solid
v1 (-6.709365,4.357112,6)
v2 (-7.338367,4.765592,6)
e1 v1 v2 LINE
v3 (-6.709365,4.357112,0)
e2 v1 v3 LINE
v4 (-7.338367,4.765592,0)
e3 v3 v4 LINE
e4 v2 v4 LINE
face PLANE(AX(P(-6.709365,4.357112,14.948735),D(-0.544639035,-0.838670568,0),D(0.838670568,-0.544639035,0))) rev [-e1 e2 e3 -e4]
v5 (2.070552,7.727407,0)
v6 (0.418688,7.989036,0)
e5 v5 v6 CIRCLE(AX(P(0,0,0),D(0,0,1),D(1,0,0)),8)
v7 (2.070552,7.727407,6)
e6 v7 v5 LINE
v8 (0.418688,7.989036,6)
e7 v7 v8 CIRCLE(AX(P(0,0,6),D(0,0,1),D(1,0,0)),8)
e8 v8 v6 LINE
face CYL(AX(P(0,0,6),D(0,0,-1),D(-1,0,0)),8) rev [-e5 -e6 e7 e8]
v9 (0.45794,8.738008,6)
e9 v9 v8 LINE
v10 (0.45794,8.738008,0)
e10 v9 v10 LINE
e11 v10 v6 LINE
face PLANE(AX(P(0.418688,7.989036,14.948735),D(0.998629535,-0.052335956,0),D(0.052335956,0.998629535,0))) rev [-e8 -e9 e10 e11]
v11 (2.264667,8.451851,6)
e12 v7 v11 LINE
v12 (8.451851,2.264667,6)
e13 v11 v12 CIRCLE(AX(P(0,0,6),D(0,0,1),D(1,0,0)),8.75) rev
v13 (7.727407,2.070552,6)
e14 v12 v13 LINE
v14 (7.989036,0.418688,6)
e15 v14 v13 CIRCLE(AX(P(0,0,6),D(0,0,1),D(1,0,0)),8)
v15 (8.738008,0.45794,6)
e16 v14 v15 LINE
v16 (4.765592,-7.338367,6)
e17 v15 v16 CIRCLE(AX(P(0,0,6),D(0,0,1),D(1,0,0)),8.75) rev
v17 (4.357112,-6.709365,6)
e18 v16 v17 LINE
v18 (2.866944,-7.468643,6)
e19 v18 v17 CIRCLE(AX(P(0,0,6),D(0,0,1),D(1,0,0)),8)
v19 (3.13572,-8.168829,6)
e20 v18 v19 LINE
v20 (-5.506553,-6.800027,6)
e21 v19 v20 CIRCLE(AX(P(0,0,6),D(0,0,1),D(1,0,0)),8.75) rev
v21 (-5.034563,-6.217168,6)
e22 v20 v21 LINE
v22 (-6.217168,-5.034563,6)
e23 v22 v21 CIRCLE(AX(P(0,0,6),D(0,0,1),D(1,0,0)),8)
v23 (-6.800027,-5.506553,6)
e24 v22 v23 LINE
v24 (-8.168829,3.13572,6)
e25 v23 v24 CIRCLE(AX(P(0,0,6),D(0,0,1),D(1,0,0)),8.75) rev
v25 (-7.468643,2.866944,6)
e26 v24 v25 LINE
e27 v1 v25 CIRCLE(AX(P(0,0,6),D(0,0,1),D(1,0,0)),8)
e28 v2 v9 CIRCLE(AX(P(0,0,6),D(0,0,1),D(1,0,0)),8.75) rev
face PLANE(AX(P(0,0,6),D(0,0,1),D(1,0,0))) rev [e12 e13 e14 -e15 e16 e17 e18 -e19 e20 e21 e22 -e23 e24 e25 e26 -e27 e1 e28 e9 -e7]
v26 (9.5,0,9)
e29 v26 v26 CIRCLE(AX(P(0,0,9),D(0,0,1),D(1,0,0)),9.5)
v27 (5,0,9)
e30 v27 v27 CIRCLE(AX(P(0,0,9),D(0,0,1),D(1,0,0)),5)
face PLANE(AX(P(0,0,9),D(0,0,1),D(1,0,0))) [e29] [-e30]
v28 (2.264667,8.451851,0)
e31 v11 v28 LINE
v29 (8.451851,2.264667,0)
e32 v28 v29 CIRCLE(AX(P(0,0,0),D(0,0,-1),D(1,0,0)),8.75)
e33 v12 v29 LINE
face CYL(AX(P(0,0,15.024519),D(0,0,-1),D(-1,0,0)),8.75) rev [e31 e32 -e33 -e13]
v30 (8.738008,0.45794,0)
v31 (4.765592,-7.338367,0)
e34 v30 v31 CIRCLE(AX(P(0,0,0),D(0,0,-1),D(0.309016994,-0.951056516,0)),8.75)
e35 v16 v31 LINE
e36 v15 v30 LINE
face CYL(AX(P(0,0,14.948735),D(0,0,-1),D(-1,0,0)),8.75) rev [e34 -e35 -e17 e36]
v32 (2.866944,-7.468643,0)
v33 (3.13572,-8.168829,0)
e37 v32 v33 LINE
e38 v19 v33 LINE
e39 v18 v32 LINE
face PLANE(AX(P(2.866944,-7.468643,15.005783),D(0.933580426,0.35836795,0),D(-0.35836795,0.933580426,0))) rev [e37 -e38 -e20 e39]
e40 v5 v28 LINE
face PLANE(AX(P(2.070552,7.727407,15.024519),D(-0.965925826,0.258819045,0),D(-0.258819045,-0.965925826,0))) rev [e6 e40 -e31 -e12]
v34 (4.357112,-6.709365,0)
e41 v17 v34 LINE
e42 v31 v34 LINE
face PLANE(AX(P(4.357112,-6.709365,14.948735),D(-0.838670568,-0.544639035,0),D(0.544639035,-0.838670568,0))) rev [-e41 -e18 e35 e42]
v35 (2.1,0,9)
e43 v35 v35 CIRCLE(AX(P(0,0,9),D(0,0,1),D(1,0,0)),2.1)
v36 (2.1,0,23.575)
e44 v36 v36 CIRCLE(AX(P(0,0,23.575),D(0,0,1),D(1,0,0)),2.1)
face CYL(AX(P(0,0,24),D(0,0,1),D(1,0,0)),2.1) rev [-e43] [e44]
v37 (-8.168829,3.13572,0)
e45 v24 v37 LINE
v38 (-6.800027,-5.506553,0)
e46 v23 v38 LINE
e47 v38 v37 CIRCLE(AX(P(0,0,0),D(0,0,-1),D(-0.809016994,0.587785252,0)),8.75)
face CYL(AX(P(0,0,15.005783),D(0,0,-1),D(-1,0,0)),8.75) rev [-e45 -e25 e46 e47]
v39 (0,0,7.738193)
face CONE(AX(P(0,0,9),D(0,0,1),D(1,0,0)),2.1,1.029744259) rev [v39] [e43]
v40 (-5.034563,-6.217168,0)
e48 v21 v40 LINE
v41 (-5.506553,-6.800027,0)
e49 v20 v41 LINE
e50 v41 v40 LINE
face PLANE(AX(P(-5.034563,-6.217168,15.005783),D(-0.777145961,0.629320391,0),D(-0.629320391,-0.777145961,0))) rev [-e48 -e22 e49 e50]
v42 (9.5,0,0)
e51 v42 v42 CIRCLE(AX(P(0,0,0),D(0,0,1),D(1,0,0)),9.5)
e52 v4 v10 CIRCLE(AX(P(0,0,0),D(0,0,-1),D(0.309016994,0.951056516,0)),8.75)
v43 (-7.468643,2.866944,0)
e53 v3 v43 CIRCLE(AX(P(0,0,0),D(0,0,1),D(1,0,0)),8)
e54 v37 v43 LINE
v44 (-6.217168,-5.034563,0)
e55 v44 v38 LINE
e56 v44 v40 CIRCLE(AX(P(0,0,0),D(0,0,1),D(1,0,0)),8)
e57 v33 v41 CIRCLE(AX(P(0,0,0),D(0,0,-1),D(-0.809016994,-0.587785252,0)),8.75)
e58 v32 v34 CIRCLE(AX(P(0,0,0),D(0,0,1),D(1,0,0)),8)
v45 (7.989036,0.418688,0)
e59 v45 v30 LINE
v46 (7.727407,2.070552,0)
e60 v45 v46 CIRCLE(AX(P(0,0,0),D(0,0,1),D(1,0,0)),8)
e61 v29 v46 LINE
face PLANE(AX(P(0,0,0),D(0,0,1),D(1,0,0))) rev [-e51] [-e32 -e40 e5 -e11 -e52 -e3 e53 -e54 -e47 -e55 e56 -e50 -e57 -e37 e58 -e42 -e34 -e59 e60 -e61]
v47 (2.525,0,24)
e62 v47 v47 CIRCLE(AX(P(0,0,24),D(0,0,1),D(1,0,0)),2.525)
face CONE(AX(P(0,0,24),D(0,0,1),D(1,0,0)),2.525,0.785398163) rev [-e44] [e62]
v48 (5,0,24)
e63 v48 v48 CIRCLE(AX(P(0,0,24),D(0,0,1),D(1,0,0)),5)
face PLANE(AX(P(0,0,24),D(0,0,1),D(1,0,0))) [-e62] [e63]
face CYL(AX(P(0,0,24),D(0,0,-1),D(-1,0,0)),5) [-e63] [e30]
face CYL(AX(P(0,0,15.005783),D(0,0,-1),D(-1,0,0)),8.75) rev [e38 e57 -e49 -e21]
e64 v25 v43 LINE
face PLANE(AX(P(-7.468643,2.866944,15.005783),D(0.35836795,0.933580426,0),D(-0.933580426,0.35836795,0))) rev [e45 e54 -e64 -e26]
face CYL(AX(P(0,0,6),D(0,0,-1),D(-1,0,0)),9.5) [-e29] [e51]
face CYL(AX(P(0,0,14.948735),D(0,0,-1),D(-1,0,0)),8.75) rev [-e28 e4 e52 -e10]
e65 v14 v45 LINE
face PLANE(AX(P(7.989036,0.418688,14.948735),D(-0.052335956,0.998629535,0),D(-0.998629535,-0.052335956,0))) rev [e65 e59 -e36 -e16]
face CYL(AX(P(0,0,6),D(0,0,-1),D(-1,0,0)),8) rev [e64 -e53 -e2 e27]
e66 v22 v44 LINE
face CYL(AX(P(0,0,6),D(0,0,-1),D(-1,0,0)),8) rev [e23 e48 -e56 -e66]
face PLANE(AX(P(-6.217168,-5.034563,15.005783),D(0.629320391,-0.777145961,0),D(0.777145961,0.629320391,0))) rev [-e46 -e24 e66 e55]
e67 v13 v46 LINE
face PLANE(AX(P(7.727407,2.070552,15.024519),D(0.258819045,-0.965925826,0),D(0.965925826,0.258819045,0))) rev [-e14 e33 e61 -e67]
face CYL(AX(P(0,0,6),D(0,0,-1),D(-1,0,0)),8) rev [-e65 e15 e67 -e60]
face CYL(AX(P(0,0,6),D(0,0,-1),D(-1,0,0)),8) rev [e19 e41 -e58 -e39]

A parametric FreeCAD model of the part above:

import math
import FreeCAD as App
import Part
import Sketcher

V = App.Vector
Q = App.Units.Quantity

doc = App.newDocument("Part")
body = doc.addObject("PartDesign::Body", "Body")

# Sketch on XY plane
sketch1 = doc.addObject("Sketcher::SketchObject", "Sketch")
body.addObject(sketch1)
sketch1.AttachmentSupport = (doc.XY_Plane, [""])
sketch1.MapMode = "FlatFace"
sketch1.addGeometry(Part.Circle(V(0, 0, 0), V(0, 0, 1), 10), False)
sketch1.addGeometry(Part.Circle(V(0, 0, 0), V(0, 0, 1), 8), False)
sketch1.addConstraint(Sketcher.Constraint("Coincident", 0, 3, -1, 1))
sketch1.addConstraint(Sketcher.Constraint("Coincident", 1, 3, -1, 1))
sketch1.addConstraint(Sketcher.Constraint("Diameter", 0, 19.0))
sketch1.addConstraint(Sketcher.Constraint("Diameter", 1, 16.0))
pad1 = doc.addObject("PartDesign::Pad", "Pad")
body.addObject(pad1)
pad1.Profile = sketch1
pad1.Length = 6

# Sketch on XY plane
sketch2 = doc.addObject("Sketcher::SketchObject", "Sketch001")
body.addObject(sketch2)
sketch2.AttachmentSupport = (doc.XY_Plane, [""])
sketch2.MapMode = "FlatFace"
sketch2.AttachmentOffset = App.Placement(V(0, 0, 6), App.Rotation())
sketch2.addGeometry(Part.Circle(V(0, 0, 0), V(0, 0, 1), 10), False)
sketch2.addConstraint(Sketcher.Constraint("Coincident", 0, 3, -1, 1))
sketch2.addConstraint(Sketcher.Constraint("Diameter", 0, 19.0))
pad2 = doc.addObject("PartDesign::Pad", "Pad001")
body.addObject(pad2)
pad2.Profile = sketch2
pad2.Length = 3

# Sketch on XY plane
sketch3 = doc.addObject("Sketcher::SketchObject", "Sketch002")
body.addObject(sketch3)
sketch3.AttachmentSupport = (doc.XY_Plane, [""])
sketch3.MapMode = "FlatFace"
sketch3.AttachmentOffset = App.Placement(V(0, 0, 9), App.Rotation())
sketch3.addGeometry(Part.Circle(V(0, 0, 0), V(0, 0, 1), 5), False)
sketch3.addConstraint(Sketcher.Constraint("Coincident", 0, 3, -1, 1))
sketch3.addConstraint(Sketcher.Constraint("Diameter", 0, 10.0))
pad3 = doc.addObject("PartDesign::Pad", "Pad002")
body.addObject(pad3)
pad3.Profile = sketch3
pad3.Length = 15

# Sketch on XY plane
sketch4 = doc.addObject("Sketcher::SketchObject", "Sketch003")
body.addObject(sketch4)
sketch4.AttachmentSupport = (doc.XY_Plane, [""])
sketch4.MapMode = "FlatFace"
sketch4.addGeometry(Part.LineSegment(V(8.5, 2.3, 0), V(7.7, 2.1, 0)), False)
sketch4.addGeometry(Part.ArcOfCircle(Part.Circle(V(0, 0, 0), V(0, 0, 1), 8), math.radians(15), math.radians(75)), False)
sketch4.addGeometry(Part.LineSegment(V(2.1, 7.7, 0), V(2.3, 8.5, 0)), False)
sketch4.addGeometry(Part.ArcOfCircle(Part.Circle(V(0, 0, 0), V(0, 0, 1), 8.8), math.radians(15), math.radians(75)), False)
sketch4.addConstraint(Sketcher.Constraint("Coincident", 0, 2, 1, 1))
sketch4.addConstraint(Sketcher.Constraint("Coincident", 1, 2, 2, 1))
sketch4.addConstraint(Sketcher.Constraint("Coincident", 2, 2, 3, 2))
sketch4.addConstraint(Sketcher.Constraint("Coincident", 3, 1, 0, 1))
sketch4.addConstraint(Sketcher.Constraint("Coincident", 1, 3, -1, 1))
sketch4.addConstraint(Sketcher.Constraint("Coincident", 3, 3, -1, 1))
sketch4.addConstraint(Sketcher.Constraint("Radius", 1, 8.0))
sketch4.addConstraint(Sketcher.Constraint("Angle", 0, Q("-165 deg")))
sketch4.addConstraint(Sketcher.Constraint("Angle", 2, Q("75 deg")))
sketch4.addConstraint(Sketcher.Constraint("Radius", 3, 8.75))
sketch4.addConstraint(Sketcher.Constraint("DistanceY", 0, 2, 2, 2, 6.381299))
sketch4.addConstraint(Sketcher.Constraint("DistanceX", 1, 2, 3, 1, 6.381299))
pocket1 = doc.addObject("PartDesign::Pocket", "Pocket")
body.addObject(pocket1)
pocket1.Profile = sketch4
pocket1.Length = 6
pocket1.Reversed = True
doc.recompute()

polarpattern = doc.addObject("PartDesign::PolarPattern", "PolarPattern")
body.addObject(polarpattern)
polarpattern.Originals = [pocket1]
polarpattern.Axis = (doc.Z_Axis, [""])
polarpattern.Angle = 360
polarpattern.Occurrences = 5
body.Tip = polarpattern

# Sketch on XY plane
sketch5 = doc.addObject("Sketcher::SketchObject", "Sketch004")
body.addObject(sketch5)
sketch5.AttachmentSupport = (doc.XY_Plane, [""])
sketch5.MapMode = "FlatFace"
sketch5.AttachmentOffset = App.Placement(V(0, 0, 24), App.Rotation())
sketch5.addGeometry(Part.Circle(V(0, 0, 0), V(0, 0, 1), 2.1), False)
sketch5.addConstraint(Sketcher.Constraint("Coincident", 0, 3, -1, 1))
sketch5.addConstraint(Sketcher.Constraint("Diameter", 0, 4.2))
doc.recompute()
hole = doc.addObject("PartDesign::Hole", "Hole")
body.addObject(hole)
hole.Profile = sketch5
hole.ThreadType = "None"
hole.Diameter = 4.2
hole.DepthType = "Dimension"
hole.Depth = 15
hole.DrillPoint = "Angled"
hole.DrillPointAngle = 118
hole.HoleCutType = "Countersink"
hole.HoleCutDiameter = 5.05
hole.HoleCutCountersinkAngle = 90

doc.recompute()
